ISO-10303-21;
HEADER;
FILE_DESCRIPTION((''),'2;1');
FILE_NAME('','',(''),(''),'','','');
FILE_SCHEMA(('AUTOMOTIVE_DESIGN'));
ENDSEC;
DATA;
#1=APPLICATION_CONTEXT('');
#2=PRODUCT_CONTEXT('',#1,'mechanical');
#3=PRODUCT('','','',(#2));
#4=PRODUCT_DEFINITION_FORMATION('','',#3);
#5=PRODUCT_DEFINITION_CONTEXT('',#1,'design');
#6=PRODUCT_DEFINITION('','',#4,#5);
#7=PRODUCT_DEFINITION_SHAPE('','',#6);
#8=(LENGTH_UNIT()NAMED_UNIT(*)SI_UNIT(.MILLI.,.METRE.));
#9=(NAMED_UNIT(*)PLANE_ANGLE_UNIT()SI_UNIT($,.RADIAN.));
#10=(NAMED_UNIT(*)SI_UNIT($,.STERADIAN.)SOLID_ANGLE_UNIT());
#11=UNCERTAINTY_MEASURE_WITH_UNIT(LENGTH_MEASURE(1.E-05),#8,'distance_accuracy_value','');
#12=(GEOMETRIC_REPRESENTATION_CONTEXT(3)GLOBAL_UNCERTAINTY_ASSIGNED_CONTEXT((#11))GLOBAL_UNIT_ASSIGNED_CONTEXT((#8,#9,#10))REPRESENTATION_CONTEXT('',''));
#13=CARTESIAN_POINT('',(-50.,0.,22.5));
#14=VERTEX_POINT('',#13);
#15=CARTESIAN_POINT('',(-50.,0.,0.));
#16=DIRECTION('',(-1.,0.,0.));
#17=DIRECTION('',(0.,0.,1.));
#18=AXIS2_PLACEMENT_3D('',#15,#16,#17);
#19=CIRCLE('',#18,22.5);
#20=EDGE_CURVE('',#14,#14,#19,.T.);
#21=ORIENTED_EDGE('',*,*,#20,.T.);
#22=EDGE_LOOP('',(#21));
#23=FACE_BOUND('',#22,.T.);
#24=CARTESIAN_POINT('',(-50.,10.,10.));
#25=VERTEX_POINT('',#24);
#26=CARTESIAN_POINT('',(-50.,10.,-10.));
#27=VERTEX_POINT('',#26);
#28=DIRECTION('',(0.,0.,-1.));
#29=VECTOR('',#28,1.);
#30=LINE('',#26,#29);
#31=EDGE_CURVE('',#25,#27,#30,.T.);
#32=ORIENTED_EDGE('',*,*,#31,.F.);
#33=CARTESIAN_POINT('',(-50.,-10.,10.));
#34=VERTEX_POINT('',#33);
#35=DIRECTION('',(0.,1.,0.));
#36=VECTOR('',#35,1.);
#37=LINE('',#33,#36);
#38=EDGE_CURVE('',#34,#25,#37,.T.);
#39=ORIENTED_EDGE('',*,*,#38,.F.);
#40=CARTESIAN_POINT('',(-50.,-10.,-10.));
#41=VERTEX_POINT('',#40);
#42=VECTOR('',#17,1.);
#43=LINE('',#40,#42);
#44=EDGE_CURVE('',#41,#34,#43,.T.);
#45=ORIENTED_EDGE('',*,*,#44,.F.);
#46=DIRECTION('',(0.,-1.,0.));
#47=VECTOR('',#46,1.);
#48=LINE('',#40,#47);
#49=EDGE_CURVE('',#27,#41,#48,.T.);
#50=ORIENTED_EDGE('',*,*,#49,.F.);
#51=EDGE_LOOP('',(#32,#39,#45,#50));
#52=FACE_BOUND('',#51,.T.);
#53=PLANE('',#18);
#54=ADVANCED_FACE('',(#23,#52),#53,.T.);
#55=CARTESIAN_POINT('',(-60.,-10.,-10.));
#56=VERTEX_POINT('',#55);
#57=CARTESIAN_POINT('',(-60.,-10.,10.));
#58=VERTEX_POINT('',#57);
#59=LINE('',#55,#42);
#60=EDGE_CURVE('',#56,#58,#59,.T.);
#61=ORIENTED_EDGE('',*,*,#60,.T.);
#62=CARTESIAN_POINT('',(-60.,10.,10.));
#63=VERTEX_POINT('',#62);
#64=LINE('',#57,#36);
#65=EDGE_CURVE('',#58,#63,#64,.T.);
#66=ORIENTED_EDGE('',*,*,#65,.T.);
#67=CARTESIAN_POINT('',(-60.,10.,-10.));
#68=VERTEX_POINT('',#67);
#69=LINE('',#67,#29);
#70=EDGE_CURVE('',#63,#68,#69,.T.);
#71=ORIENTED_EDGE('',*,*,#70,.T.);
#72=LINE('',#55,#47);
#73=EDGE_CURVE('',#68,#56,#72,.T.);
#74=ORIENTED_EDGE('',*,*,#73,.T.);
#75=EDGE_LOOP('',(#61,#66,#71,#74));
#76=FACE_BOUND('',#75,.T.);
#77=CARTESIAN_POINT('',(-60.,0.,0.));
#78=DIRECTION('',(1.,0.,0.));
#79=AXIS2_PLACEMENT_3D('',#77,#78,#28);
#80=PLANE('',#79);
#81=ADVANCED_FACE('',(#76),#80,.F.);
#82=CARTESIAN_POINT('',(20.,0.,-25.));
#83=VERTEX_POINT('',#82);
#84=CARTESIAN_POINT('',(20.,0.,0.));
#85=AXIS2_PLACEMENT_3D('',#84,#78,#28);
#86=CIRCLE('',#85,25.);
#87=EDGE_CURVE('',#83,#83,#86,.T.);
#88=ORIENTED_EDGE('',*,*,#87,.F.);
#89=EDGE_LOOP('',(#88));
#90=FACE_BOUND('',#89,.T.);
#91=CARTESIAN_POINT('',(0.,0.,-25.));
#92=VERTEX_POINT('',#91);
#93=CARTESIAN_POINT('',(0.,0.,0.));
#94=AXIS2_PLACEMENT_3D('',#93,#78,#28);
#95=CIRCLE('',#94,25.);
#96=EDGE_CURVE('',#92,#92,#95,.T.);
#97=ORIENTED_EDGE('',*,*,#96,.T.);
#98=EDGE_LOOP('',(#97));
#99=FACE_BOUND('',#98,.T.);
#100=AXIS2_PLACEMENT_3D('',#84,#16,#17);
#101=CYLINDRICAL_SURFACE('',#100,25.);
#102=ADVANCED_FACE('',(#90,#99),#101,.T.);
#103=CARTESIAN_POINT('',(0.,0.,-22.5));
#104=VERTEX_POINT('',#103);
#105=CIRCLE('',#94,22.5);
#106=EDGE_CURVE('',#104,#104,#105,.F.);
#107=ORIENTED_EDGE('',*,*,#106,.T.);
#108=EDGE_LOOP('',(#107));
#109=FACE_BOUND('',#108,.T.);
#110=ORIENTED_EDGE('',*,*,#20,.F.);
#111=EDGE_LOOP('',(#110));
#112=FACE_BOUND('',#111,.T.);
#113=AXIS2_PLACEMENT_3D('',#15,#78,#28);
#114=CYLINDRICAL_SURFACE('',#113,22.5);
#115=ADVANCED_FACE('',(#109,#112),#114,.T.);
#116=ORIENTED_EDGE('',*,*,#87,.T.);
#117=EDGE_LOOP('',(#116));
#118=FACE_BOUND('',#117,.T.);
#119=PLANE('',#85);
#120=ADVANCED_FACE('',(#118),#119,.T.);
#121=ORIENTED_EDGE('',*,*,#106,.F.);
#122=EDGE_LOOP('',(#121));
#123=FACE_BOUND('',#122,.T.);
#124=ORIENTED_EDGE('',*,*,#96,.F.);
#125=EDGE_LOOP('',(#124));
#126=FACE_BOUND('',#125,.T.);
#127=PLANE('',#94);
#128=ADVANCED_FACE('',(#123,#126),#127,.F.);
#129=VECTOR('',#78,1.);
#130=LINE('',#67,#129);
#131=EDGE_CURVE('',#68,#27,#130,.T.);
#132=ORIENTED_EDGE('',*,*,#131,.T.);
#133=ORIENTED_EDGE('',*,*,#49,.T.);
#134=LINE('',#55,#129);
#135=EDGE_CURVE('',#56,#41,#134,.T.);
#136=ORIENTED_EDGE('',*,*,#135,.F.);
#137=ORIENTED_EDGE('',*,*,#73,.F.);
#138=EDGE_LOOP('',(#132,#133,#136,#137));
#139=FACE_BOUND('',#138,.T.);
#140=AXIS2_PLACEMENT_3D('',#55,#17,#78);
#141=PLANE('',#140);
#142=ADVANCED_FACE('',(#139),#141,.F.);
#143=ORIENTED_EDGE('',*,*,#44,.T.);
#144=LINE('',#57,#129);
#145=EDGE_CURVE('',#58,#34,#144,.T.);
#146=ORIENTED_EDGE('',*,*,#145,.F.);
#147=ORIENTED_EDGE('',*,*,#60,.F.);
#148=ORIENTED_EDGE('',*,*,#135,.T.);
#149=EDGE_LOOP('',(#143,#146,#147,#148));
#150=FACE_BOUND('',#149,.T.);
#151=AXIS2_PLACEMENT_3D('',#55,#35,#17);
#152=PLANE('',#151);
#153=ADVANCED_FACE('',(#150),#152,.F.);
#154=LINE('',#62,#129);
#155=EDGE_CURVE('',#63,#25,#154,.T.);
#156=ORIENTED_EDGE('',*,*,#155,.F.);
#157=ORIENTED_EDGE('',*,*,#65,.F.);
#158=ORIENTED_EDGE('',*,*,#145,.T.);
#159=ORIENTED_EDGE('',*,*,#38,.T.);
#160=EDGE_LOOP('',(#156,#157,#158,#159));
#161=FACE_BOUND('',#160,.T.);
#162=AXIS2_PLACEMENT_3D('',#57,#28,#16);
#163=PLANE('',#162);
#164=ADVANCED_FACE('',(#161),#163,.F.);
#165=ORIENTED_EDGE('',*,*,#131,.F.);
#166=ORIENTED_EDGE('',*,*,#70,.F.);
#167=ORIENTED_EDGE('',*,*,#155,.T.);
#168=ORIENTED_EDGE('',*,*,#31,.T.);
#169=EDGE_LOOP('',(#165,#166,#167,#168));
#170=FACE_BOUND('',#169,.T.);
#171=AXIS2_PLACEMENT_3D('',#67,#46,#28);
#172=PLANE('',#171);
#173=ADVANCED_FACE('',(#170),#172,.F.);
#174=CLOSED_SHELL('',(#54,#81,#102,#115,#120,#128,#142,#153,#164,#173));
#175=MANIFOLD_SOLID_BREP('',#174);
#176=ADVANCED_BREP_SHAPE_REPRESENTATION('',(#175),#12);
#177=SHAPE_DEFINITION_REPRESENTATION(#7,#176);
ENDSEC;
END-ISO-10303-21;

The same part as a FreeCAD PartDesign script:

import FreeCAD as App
import Part
import Sketcher
from FreeCAD import Vector
Q = App.Units.Quantity

doc = App.newDocument("Part")
params = doc.addObject("Spreadsheet::Sheet", "Params")
for row, (alias, value) in enumerate([
    ("sketch1_diameter", "50 mm"),
    ("pad1_length", "20 mm"),
    ("sketch2_width", "20 mm"),
    ("pad2_length", "60 mm"),
    ("sketch3_diameter", "45 mm"),
    ("pad3_length", "50 mm"),
], start=1):
    params.set(f"A{row}", alias)
    params.set(f"B{row}", "=" + value)
    params.setAlias(f"B{row}", alias)

body = doc.addObject("PartDesign::Body", "Body")

sketch1 = body.newObject("Sketcher::SketchObject", "Sketch")
sketch1.AttachmentSupport = (doc.getObject("YZ_Plane"), [""])
sketch1.MapMode = "FlatFace"
sketch1.addGeometry(Part.Circle(Vector(0, 0, 0), Vector(0, 0, 1), 25), False)
sketch1.addConstraint(Sketcher.Constraint("Coincident", 0, 3, -1, 1))
sketch1.addConstraint(Sketcher.Constraint("Diameter", 0, Q("50 mm")))
sketch1.setExpression("Constraints[1]", "Params.sketch1_diameter")
pad1 = body.newObject("PartDesign::Pad", "Pad")
pad1.Profile = sketch1
pad1.setExpression("Length", "Params.pad1_length")

sketch2 = body.newObject("Sketcher::SketchObject", "Sketch001")
sketch2.AttachmentSupport = (doc.getObject("YZ_Plane"), [""])
sketch2.MapMode = "FlatFace"
sketch2.addGeometry(Part.LineSegment(Vector(10, -10, 0), Vector(-10, -10, 0)), False)
sketch2.addGeometry(Part.LineSegment(Vector(-10, -10, 0), Vector(-10, 10, 0)), False)
sketch2.addGeometry(Part.LineSegment(Vector(-10, 10, 0), Vector(10, 10, 0)), False)
sketch2.addGeometry(Part.LineSegment(Vector(10, 10, 0), Vector(10, -10, 0)), False)
sketch2.addConstraint(Sketcher.Constraint("Coincident", 0, 2, 1, 1))
sketch2.addConstraint(Sketcher.Constraint("Coincident", 1, 2, 2, 1))
sketch2.addConstraint(Sketcher.Constraint("Coincident", 2, 2, 3, 1))
sketch2.addConstraint(Sketcher.Constraint("Coincident", 3, 2, 0, 1))
sketch2.addConstraint(Sketcher.Constraint("Horizontal", 0))
sketch2.addConstraint(Sketcher.Constraint("Vertical", 1))
sketch2.addConstraint(Sketcher.Constraint("Horizontal", 2))
sketch2.addConstraint(Sketcher.Constraint("Vertical", 3))
sketch2.addConstraint(Sketcher.Constraint("Symmetric", 0, 2, 2, 2, -1, 1))
sketch2.addConstraint(Sketcher.Constraint("Equal", 2, 1))
sketch2.addConstraint(Sketcher.Constraint("DistanceX", 0, 2, 0, 1, Q("20 mm")))
sketch2.setExpression("Constraints[10]", "Params.sketch2_width")
pad2 = body.newObject("PartDesign::Pad", "Pad001")
pad2.Profile = sketch2
pad2.setExpression("Length", "Params.pad2_length")
pad2.Reversed = True

sketch3 = body.newObject("Sketcher::SketchObject", "Sketch002")
sketch3.AttachmentSupport = (doc.getObject("YZ_Plane"), [""])
sketch3.MapMode = "FlatFace"
sketch3.addGeometry(Part.Circle(Vector(0, 0, 0), Vector(0, 0, 1), 22), False)
sketch3.addConstraint(Sketcher.Constraint("Coincident", 0, 3, -1, 1))
sketch3.addConstraint(Sketcher.Constraint("Diameter", 0, Q("45 mm")))
sketch3.setExpression("Constraints[1]", "Params.sketch3_diameter")
pad3 = body.newObject("PartDesign::Pad", "Pad002")
pad3.Profile = sketch3
pad3.setExpression("Length", "Params.pad3_length")
pad3.Reversed = True

doc.recompute()
